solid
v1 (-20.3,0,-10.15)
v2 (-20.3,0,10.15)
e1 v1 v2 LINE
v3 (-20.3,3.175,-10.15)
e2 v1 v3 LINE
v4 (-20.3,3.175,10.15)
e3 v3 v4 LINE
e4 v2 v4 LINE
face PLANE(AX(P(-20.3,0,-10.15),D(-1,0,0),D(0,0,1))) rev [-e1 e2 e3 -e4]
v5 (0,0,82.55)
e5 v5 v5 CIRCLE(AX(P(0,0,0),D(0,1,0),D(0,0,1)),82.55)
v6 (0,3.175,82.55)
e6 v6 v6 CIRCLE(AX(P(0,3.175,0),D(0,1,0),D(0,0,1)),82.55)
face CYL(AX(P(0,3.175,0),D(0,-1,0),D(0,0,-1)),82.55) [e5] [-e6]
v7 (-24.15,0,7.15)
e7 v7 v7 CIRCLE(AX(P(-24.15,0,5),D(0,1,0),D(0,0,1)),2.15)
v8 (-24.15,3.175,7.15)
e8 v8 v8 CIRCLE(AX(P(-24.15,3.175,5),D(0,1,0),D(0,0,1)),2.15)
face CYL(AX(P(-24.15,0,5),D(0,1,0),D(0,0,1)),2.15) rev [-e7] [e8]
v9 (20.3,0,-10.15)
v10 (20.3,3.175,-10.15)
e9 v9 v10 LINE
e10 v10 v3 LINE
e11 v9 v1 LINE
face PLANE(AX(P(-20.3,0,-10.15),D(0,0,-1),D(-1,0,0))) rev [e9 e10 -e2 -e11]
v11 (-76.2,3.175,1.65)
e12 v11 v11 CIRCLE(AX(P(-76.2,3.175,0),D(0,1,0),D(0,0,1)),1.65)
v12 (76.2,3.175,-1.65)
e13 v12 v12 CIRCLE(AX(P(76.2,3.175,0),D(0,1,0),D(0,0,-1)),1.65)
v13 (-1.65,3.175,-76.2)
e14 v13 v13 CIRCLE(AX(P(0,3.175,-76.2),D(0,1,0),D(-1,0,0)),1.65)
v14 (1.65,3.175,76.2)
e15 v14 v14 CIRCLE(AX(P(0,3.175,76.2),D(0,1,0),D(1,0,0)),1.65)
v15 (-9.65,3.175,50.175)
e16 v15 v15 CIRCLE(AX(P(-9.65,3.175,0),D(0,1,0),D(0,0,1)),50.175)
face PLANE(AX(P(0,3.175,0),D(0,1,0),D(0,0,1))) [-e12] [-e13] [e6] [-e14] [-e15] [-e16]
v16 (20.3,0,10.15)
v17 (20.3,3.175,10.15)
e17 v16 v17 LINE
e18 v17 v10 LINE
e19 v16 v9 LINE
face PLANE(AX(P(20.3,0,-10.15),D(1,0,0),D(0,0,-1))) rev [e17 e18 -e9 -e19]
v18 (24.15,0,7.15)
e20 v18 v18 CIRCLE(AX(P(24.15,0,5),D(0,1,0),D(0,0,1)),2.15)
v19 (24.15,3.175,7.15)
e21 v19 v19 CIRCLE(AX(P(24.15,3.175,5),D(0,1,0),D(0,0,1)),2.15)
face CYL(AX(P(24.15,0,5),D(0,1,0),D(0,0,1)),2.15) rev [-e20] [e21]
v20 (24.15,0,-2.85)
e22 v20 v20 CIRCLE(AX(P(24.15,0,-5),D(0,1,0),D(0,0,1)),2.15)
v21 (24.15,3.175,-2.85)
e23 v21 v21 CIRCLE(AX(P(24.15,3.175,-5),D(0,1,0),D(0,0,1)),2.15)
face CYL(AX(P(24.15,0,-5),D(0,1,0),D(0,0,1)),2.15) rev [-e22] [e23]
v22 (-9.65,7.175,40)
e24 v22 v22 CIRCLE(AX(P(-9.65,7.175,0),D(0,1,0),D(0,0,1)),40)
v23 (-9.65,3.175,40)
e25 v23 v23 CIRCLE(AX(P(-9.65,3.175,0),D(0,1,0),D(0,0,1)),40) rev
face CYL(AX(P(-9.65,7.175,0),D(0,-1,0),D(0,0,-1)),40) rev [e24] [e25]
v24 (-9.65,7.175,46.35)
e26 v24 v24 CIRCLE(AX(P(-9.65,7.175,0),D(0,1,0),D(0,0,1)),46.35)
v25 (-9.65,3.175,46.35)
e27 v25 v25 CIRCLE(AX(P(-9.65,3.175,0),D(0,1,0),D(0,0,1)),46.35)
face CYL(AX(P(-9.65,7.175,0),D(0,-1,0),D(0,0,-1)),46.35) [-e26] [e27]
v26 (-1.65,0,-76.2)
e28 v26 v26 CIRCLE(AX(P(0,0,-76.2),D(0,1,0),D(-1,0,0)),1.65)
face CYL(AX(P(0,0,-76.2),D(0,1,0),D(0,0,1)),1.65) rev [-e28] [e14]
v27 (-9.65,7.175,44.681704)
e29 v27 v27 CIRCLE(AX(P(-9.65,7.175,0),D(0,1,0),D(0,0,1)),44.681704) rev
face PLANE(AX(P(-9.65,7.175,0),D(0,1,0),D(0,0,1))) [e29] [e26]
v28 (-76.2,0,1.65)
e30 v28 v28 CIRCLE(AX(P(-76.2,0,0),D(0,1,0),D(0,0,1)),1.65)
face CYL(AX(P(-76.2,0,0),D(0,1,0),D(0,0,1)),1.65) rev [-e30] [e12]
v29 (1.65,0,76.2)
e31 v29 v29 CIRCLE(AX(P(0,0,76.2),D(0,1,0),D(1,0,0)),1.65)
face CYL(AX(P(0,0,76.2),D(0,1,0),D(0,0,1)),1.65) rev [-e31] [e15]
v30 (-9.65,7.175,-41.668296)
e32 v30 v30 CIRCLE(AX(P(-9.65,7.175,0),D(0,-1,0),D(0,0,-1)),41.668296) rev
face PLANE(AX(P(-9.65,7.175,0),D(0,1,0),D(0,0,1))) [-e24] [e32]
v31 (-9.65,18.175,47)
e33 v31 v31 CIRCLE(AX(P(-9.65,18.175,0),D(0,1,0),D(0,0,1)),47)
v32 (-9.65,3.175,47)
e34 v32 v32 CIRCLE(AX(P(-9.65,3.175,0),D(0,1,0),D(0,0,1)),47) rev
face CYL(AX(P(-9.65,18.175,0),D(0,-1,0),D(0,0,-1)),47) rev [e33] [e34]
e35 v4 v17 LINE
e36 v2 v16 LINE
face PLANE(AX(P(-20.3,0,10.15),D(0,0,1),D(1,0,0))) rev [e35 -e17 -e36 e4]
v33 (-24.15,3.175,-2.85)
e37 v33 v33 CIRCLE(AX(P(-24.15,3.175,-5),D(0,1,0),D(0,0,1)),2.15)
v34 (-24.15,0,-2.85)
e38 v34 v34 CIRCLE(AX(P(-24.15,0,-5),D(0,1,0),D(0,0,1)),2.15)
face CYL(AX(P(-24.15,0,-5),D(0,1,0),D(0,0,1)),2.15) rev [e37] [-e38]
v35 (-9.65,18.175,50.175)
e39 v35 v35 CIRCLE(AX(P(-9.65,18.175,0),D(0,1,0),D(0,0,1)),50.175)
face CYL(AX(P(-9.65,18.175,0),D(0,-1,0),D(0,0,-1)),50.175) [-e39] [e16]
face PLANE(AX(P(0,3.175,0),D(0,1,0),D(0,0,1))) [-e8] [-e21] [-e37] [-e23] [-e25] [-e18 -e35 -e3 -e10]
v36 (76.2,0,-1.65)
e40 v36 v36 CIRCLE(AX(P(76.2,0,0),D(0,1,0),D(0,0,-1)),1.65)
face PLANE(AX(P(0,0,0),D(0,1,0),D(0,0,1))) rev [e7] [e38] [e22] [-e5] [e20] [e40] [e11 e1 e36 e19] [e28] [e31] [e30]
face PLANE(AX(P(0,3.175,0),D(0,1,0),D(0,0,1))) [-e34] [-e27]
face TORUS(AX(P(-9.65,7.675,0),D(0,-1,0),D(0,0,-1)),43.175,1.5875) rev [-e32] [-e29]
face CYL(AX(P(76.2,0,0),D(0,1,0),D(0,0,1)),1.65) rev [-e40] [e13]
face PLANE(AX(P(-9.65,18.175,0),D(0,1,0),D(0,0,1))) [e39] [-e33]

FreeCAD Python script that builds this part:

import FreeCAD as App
import Part
import Sketcher
Q = App.Units.Quantity

doc = App.newDocument("Part")
body = doc.addObject("PartDesign::Body", "Body")

# Sketch on XZ plane
sketch1 = body.newObject("Sketcher::SketchObject", "Sketch")
sketch1.AttachmentSupport = (doc.getObject("XZ_Plane"), [""])
sketch1.MapMode = "FlatFace"
sketch1.addGeometry(Part.Circle(App.Vector(0, 0, 0), App.Vector(0, 0, 1), 83), False)
sketch1.addConstraint(Sketcher.Constraint("Coincident", 0, 3, -1, 1))
sketch1.addConstraint(Sketcher.Constraint("Diameter", 0, Q("165.1 mm")))
pad1 = body.newObject("PartDesign::Pad", "Pad")
pad1.Profile = sketch1
pad1.Length = 3.175
pad1.Reversed = True

# Sketch on XZ plane
sketch2 = body.newObject("Sketcher::SketchObject", "Sketch001")
sketch2.AttachmentSupport = (doc.getObject("XZ_Plane"), [""])
sketch2.MapMode = "FlatFace"
sketch2.AttachmentOffset = App.Placement(App.Vector(0, 0, -3.175), App.Rotation())
sketch2.addGeometry(Part.Circle(App.Vector(-24.1, -5, 0), App.Vector(0, 0, 1), 2.1), False)
sketch2.addGeometry(Part.Circle(App.Vector(-24.1, 5, 0), App.Vector(0, 0, 1), 2.1), False)
sketch2.addGeometry(Part.Circle(App.Vector(24.1, -5, 0), App.Vector(0, 0, 1), 2.1), False)
sketch2.addGeometry(Part.Circle(App.Vector(24.1, 5, 0), App.Vector(0, 0, 1), 2.1), False)
sketch2.addGeometry(Part.LineSegment(App.Vector(-20.3, -10.2, 0), App.Vector(-20.3, 10.2, 0)), False)
sketch2.addGeometry(Part.LineSegment(App.Vector(-20.3, 10.2, 0), App.Vector(20.3, 10.2, 0)), False)
sketch2.addGeometry(Part.LineSegment(App.Vector(20.3, 10.2, 0), App.Vector(20.3, -10.2, 0)), False)
sketch2.addGeometry(Part.LineSegment(App.Vector(20.3, -10.2, 0), App.Vector(-20.3, -10.2, 0)), False)
sketch2.addConstraint(Sketcher.Constraint("Coincident", 4, 2, 5, 1))
sketch2.addConstraint(Sketcher.Constraint("Coincident", 5, 2, 6, 1))
sketch2.addConstraint(Sketcher.Constraint("Coincident", 6, 2, 7, 1))
sketch2.addConstraint(Sketcher.Constraint("Coincident", 7, 2, 4, 1))
sketch2.addConstraint(Sketcher.Constraint("Vertical", 4))
sketch2.addConstraint(Sketcher.Constraint("Horizontal", 5))
sketch2.addConstraint(Sketcher.Constraint("Vertical", 6))
sketch2.addConstraint(Sketcher.Constraint("Horizontal", 7))
sketch2.addConstraint(Sketcher.Constraint("Equal", 0, 1))
sketch2.addConstraint(Sketcher.Constraint("Equal", 1, 2))
sketch2.addConstraint(Sketcher.Constraint("Equal", 2, 3))
sketch2.addConstraint(Sketcher.Constraint("Symmetric", 1, 3, 2, 3, -1, 1))
sketch2.addConstraint(Sketcher.Constraint("Symmetric", 0, 3, 3, 3, -1, 1))
sketch2.addConstraint(Sketcher.Constraint("Symmetric", 4, 2, 6, 2, -1, 1))
sketch2.addConstraint(Sketcher.Constraint("Symmetric", 0, 3, 2, 3, -2))
sketch2.addConstraint(Sketcher.Constraint("Diameter", 0, Q("4.3 mm")))
sketch2.addConstraint(Sketcher.Constraint("DistanceX", 5, 1, 5, 2, Q("40.6 mm")))
sketch2.addConstraint(Sketcher.Constraint("DistanceY", 4, 1, 4, 2, Q("20.3 mm")))
sketch2.addConstraint(Sketcher.Constraint("DistanceY", 0, 3, -1, 1, Q("5 mm")))
sketch2.addConstraint(Sketcher.Constraint("DistanceX", 0, 3, 2, 3, Q("48.3 mm")))
pocket1 = body.newObject("PartDesign::Pocket", "Pocket")
pocket1.Profile = sketch2
pocket1.Length = 3.175
pocket1.Reversed = True

# Sketch on XZ plane
sketch3 = body.newObject("Sketcher::SketchObject", "Sketch002")
sketch3.AttachmentSupport = (doc.getObject("XZ_Plane"), [""])
sketch3.MapMode = "FlatFace"
sketch3.AttachmentOffset = App.Placement(App.Vector(0, 0, -3.175), App.Rotation())
sketch3.addGeometry(Part.Circle(App.Vector(-76.2, 0, 0), App.Vector(0, 0, 1), 1.6), False)
sketch3.addConstraint(Sketcher.Constraint("PointOnObject", 0, 3, -1))
sketch3.addConstraint(Sketcher.Constraint("Diameter", 0, Q("3.3 mm")))
sketch3.addConstraint(Sketcher.Constraint("DistanceX", 0, 3, -1, 1, Q("76.2 mm")))
pocket2 = body.newObject("PartDesign::Pocket", "Pocket001")
pocket2.Profile = sketch3
pocket2.Length = 3.175
pocket2.Reversed = True
doc.recompute()

polarpattern = body.newObject("PartDesign::PolarPattern", "PolarPattern")
polarpattern.Originals = [pocket2]
polarpattern.Axis = (doc.getObject("Y_Axis"), [""])
polarpattern.Angle = 360
polarpattern.Occurrences = 4
body.Tip = polarpattern

# Sketch on XZ plane
sketch4 = body.newObject("Sketcher::SketchObject", "Sketch003")
sketch4.AttachmentSupport = (doc.getObject("XZ_Plane"), [""])
sketch4.MapMode = "FlatFace"
sketch4.AttachmentOffset = App.Placement(App.Vector(0, 0, -3.175), App.Rotation())
sketch4.addGeometry(Part.Circle(App.Vector(-10, 0, 0), App.Vector(0, 0, 1), 46), False)
sketch4.addGeometry(Part.Circle(App.Vector(-10, 0, 0), App.Vector(0, 0, 1), 40), False)
sketch4.addConstraint(Sketcher.Constraint("Coincident", 1, 3, 0, 3))
sketch4.addConstraint(Sketcher.Constraint("PointOnObject", 0, 3, -1))
sketch4.addConstraint(Sketcher.Constraint("Diameter", 1, Q("80 mm")))
sketch4.addConstraint(Sketcher.Constraint("Diameter", 0, Q("92.7 mm")))
sketch4.addConstraint(Sketcher.Constraint("DistanceX", 0, 3, -1, 1, Q("9.65 mm")))
pad2 = body.newObject("PartDesign::Pad", "Pad001")
pad2.Profile = sketch4
pad2.Length = 4
pad2.Reversed = True

# Sketch on XY plane
sketch5 = body.newObject("Sketcher::SketchObject", "Sketch004")
sketch5.AttachmentSupport = (doc.getObject("XY_Plane"), [""])
sketch5.MapMode = "FlatFace"
sketch5.addGeometry(Part.Circle(App.Vector(-52.8, 7.7, 0), App.Vector(0, 0, 1), 1.6), False)
sketch5.addGeometry(Part.LineSegment(App.Vector(-9.7, 7.7, 0), App.Vector(-9.7, 17.7, 0)), True)  # axis
sketch5.addConstraint(Sketcher.Constraint("Vertical", 1))
sketch5.addConstraint(Sketcher.Constraint("Horizontal", 0, 3, 1, 1))
sketch5.addConstraint(Sketcher.Constraint("DistanceY", 1, 1, 1, 2, Q("10 mm")))
sketch5.addConstraint(Sketcher.Constraint("Diameter", 0, Q("3.175 mm")))
sketch5.addConstraint(Sketcher.Constraint("DistanceX", 1, 1, -1, 1, Q("9.65 mm")))
sketch5.addConstraint(Sketcher.Constraint("DistanceX", 0, 3, -1, 1, Q("52.825 mm")))
sketch5.addConstraint(Sketcher.Constraint("DistanceY", -1, 1, 0, 3, Q("7.675 mm")))
groove = body.newObject("PartDesign::Groove", "Groove")
groove.Profile = sketch5
groove.ReferenceAxis = (sketch5, ["Axis0"])
groove.Angle = 360

# Sketch on XZ plane
sketch6 = body.newObject("Sketcher::SketchObject", "Sketch005")
sketch6.AttachmentSupport = (doc.getObject("XZ_Plane"), [""])
sketch6.MapMode = "FlatFace"
sketch6.AttachmentOffset = App.Placement(App.Vector(0, 0, -3.175), App.Rotation())
sketch6.addGeometry(Part.Circle(App.Vector(-10, 0, 0), App.Vector(0, 0, 1), 50), False)
sketch6.addGeometry(Part.Circle(App.Vector(-10, 0, 0), App.Vector(0, 0, 1), 47), False)
sketch6.addConstraint(Sketcher.Constraint("Coincident", 1, 3, 0, 3))
sketch6.addConstraint(Sketcher.Constraint("PointOnObject", 0, 3, -1))
sketch6.addConstraint(Sketcher.Constraint("Diameter", 1, Q("94 mm")))
sketch6.addConstraint(Sketcher.Constraint("Diameter", 0, Q("100.35 mm")))
sketch6.addConstraint(Sketcher.Constraint("DistanceX", 0, 3, -1, 1, Q("9.65 mm")))
pad3 = body.newObject("PartDesign::Pad", "Pad002")
pad3.Profile = sketch6
pad3.Length = 15
pad3.Reversed = True

doc.recompute()
